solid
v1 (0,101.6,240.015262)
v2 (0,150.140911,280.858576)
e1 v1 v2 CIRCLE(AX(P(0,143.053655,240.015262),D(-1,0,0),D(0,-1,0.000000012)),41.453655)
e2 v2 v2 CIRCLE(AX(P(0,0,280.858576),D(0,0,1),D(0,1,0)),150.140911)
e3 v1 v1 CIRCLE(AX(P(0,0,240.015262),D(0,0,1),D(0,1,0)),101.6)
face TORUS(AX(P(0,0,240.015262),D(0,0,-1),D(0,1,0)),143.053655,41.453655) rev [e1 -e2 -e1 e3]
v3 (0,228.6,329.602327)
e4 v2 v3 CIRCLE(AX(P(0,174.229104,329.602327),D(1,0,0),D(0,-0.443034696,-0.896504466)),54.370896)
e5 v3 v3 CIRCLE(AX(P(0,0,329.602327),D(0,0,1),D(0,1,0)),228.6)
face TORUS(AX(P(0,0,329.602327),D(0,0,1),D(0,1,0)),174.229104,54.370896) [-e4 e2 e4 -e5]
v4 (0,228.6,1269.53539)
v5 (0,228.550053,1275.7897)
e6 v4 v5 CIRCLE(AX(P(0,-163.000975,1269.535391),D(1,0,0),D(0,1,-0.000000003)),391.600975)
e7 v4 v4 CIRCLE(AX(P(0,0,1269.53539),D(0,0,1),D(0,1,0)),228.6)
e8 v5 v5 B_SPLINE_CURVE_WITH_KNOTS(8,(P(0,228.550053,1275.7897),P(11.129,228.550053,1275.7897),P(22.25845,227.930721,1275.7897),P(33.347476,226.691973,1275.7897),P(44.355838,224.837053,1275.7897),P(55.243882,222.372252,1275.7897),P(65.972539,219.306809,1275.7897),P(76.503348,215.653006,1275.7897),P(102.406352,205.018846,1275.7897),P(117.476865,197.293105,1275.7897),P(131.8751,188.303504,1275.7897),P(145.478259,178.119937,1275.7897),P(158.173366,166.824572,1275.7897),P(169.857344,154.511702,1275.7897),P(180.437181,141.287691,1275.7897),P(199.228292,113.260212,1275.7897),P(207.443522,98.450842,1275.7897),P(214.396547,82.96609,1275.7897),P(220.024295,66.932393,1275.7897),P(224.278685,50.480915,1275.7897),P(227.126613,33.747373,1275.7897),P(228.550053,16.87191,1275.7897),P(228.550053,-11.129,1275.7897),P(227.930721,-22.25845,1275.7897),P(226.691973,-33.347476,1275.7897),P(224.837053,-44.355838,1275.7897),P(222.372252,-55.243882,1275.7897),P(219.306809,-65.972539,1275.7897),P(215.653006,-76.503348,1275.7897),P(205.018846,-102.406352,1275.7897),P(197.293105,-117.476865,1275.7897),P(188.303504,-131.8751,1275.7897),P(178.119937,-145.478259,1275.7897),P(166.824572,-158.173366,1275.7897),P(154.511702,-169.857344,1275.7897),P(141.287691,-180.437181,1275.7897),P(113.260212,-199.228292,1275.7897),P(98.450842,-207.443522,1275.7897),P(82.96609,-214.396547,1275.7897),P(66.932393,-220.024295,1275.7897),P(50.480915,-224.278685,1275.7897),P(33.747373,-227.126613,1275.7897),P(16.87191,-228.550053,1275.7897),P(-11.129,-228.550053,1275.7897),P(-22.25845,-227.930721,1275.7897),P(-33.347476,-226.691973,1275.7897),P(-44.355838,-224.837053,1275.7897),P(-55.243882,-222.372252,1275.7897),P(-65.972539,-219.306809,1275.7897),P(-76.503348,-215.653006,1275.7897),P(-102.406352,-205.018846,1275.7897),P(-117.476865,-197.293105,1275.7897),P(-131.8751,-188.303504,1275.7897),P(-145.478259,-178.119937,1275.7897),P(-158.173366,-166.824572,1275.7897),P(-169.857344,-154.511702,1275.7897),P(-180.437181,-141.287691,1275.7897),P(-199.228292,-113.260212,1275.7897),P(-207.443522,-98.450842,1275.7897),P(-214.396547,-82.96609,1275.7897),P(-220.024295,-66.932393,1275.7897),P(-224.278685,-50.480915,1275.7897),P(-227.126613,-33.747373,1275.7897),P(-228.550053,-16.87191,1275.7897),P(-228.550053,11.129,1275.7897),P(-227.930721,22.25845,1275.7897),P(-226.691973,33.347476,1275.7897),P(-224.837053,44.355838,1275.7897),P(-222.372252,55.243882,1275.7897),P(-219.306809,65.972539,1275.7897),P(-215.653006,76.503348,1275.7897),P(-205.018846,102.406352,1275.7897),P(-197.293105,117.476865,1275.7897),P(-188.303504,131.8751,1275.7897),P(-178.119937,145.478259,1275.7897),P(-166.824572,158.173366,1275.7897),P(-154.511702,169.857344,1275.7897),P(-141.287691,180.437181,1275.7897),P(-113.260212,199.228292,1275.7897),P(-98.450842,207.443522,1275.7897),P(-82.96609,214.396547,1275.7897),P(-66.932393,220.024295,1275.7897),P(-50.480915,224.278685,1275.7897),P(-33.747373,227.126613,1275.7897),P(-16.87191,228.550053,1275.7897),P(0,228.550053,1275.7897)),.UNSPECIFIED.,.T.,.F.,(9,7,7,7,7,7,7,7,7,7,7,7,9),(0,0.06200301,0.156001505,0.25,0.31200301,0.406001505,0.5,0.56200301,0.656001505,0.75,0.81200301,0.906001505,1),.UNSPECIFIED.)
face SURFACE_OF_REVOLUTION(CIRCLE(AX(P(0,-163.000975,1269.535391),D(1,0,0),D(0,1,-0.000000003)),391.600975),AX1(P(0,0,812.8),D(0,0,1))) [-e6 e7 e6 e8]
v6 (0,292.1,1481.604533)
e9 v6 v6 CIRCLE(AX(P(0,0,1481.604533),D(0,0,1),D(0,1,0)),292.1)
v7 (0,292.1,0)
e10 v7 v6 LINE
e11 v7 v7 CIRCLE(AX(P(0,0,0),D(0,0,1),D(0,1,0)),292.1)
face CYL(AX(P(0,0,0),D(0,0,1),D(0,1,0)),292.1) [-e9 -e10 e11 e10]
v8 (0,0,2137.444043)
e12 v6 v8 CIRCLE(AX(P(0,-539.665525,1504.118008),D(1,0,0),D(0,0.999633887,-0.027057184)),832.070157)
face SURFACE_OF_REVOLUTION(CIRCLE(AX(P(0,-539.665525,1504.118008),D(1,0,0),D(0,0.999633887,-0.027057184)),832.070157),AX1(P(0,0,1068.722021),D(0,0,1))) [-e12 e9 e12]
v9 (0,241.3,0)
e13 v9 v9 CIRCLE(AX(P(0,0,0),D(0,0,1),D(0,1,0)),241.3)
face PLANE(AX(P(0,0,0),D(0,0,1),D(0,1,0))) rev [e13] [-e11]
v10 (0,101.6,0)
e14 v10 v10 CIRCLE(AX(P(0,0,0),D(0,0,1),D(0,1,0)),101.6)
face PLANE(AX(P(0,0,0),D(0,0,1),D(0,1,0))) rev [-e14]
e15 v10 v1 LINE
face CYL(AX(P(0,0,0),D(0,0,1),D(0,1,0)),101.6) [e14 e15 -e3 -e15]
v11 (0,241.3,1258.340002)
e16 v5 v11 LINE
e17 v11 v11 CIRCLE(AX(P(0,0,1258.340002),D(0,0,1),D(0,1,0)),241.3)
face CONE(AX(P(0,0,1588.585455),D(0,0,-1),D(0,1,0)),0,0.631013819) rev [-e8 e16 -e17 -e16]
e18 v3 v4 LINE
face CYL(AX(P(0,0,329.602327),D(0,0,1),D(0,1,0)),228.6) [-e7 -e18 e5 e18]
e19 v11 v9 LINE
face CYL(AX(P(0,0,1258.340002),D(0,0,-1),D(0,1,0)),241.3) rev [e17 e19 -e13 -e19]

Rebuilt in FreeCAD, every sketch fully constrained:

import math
import FreeCAD as App
import Part
import Sketcher
from FreeCAD import Vector
Q = App.Units.Quantity

doc = App.newDocument("Part")
body = doc.addObject("PartDesign::Body", "Body")

# Sketch on YZ plane
sketch1 = body.newObject("Sketcher::SketchObject", "Sketch")
sketch1.AttachmentSupport = (doc.getObject("YZ_Plane"), [""])
sketch1.MapMode = "FlatFace"
sketch1.addGeometry([
    Part.LineSegment(Vector(0, 1625.6, 0), Vector(0, 0, 0)),  # 0
    Part.LineSegment(Vector(0, 0, 0), Vector(101.6, 0, 0)),  # 1
    Part.LineSegment(Vector(101.6, 0, 0), Vector(101.6, 240.015262, 0)),  # 2
    Part.ArcOfCircle(Part.Circle(Vector(143.053655, 240.015262, 0), Vector(0, 0, 1), 41.453655), math.radians(80.155884), math.radians(179.999999)),  # 3
    Part.ArcOfCircle(Part.Circle(Vector(174.229104, 329.602327, 0), Vector(0, 0, 1), 54.370896), math.radians(-116.297668), math.radians(0)),  # 4
    Part.LineSegment(Vector(228.6, 329.602327, 0), Vector(228.6, 1269.53539, 0)),  # 5
    Part.ArcOfCircle(Part.Circle(Vector(-163.000975, 1269.535391, 0), Vector(0, 0, 1), 391.600975), math.radians(0), math.radians(65.402412)),  # 6
], False)
sketch1.addConstraint([
    Sketcher.Constraint("Coincident", 0, 2, 1, 1),
    Sketcher.Constraint("Coincident", 1, 2, 2, 1),
    Sketcher.Constraint("Tangent", 2, 2, 3, 2),
    Sketcher.Constraint("Coincident", 3, 1, 4, 1),
    Sketcher.Constraint("Tangent", 4, 2, 5, 1),
    Sketcher.Constraint("Tangent", 5, 2, 6, 1),
    Sketcher.Constraint("Coincident", 6, 2, 0, 1),
    Sketcher.Constraint("Vertical", 0),
    Sketcher.Constraint("Horizontal", 1),
    Sketcher.Constraint("Vertical", 2),
    Sketcher.Constraint("Vertical", 5),
    Sketcher.Constraint("Coincident", 0, 2, -1, 1),
    Sketcher.Constraint("DistanceX", 1, 1, 1, 2, Q("4 in")),
    Sketcher.Constraint("DistanceY", 0, 2, 0, 1, Q("64 in")),
    Sketcher.Constraint("DistanceX", -1, 1, 4, 2, Q("9 in")),
    Sketcher.Constraint("Radius", 3, Q("41.453655 mm")),
    Sketcher.Constraint("Radius", 4, Q("54.370896 mm")),
    Sketcher.Constraint("Radius", 6, Q("391.600975 mm")),
    Sketcher.Constraint("DistanceY", 2, 1, 2, 2, Q("240.015262 mm")),
    Sketcher.Constraint("DistanceY", 5, 1, 5, 2, Q("939.933063 mm")),
])
revolution = body.newObject("PartDesign::Revolution", "Revolution")
revolution.Profile = sketch1
revolution.ReferenceAxis = (sketch1, ["V_Axis"])
revolution.Angle = 360

# Sketch on YZ plane
sketch2 = body.newObject("Sketcher::SketchObject", "Sketch001")
sketch2.AttachmentSupport = (doc.getObject("YZ_Plane"), [""])
sketch2.MapMode = "FlatFace"
sketch2.addGeometry([
    Part.LineSegment(Vector(0, 2137.444043, 0), Vector(0, 1588.585455, 0)),  # 0
    Part.LineSegment(Vector(0, 1588.585455, 0), Vector(241.3, 1258.340002, 0)),  # 1
    Part.LineSegment(Vector(241.3, 1258.340002, 0), Vector(241.3, 0, 0)),  # 2
    Part.LineSegment(Vector(241.3, 0, 0), Vector(292.1, 0, 0)),  # 3
    Part.LineSegment(Vector(292.1, 0, 0), Vector(292.1, 1481.604533, 0)),  # 4
    Part.ArcOfCircle(Part.Circle(Vector(-539.665525, 1504.118008, 0), Vector(0, 0, 1), 832.070157), math.radians(-1.550452), math.radians(49.565242)),  # 5
], False)
sketch2.addConstraint([
    Sketcher.Constraint("Coincident", 0, 2, 1, 1),
    Sketcher.Constraint("Coincident", 1, 2, 2, 1),
    Sketcher.Constraint("Coincident", 2, 2, 3, 1),
    Sketcher.Constraint("Coincident", 3, 2, 4, 1),
    Sketcher.Constraint("Coincident", 4, 2, 5, 1),
    Sketcher.Constraint("Coincident", 5, 2, 0, 1),
    Sketcher.Constraint("Vertical", 0),
    Sketcher.Constraint("Vertical", 2),
    Sketcher.Constraint("Horizontal", 3),
    Sketcher.Constraint("Vertical", 4),
    Sketcher.Constraint("PointOnObject", 0, 2, -2),
    Sketcher.Constraint("PointOnObject", 2, 2, -1),
    Sketcher.Constraint("DistanceX", 3, 1, 3, 2, Q("2 in")),
    Sketcher.Constraint("DistanceX", -1, 1, 1, 2, Q("9.5 in")),
    Sketcher.Constraint("DistanceY", 2, 2, 2, 1, Q("1258.340002 mm")),
    Sketcher.Constraint("Radius", 5, Q("832.070157 mm")),
    Sketcher.Constraint("DistanceY", 0, 2, 0, 1, Q("548.858588 mm")),
    Sketcher.Constraint("Distance", 1, Q("409.008251 mm")),
    Sketcher.Constraint("DistanceY", 4, 1, 4, 2, Q("1481.604533 mm")),
])
revolution2 = body.newObject("PartDesign::Revolution", "Revolution001")
revolution2.Profile = sketch2
revolution2.ReferenceAxis = (sketch2, ["V_Axis"])
revolution2.Angle = 360

doc.recompute()
